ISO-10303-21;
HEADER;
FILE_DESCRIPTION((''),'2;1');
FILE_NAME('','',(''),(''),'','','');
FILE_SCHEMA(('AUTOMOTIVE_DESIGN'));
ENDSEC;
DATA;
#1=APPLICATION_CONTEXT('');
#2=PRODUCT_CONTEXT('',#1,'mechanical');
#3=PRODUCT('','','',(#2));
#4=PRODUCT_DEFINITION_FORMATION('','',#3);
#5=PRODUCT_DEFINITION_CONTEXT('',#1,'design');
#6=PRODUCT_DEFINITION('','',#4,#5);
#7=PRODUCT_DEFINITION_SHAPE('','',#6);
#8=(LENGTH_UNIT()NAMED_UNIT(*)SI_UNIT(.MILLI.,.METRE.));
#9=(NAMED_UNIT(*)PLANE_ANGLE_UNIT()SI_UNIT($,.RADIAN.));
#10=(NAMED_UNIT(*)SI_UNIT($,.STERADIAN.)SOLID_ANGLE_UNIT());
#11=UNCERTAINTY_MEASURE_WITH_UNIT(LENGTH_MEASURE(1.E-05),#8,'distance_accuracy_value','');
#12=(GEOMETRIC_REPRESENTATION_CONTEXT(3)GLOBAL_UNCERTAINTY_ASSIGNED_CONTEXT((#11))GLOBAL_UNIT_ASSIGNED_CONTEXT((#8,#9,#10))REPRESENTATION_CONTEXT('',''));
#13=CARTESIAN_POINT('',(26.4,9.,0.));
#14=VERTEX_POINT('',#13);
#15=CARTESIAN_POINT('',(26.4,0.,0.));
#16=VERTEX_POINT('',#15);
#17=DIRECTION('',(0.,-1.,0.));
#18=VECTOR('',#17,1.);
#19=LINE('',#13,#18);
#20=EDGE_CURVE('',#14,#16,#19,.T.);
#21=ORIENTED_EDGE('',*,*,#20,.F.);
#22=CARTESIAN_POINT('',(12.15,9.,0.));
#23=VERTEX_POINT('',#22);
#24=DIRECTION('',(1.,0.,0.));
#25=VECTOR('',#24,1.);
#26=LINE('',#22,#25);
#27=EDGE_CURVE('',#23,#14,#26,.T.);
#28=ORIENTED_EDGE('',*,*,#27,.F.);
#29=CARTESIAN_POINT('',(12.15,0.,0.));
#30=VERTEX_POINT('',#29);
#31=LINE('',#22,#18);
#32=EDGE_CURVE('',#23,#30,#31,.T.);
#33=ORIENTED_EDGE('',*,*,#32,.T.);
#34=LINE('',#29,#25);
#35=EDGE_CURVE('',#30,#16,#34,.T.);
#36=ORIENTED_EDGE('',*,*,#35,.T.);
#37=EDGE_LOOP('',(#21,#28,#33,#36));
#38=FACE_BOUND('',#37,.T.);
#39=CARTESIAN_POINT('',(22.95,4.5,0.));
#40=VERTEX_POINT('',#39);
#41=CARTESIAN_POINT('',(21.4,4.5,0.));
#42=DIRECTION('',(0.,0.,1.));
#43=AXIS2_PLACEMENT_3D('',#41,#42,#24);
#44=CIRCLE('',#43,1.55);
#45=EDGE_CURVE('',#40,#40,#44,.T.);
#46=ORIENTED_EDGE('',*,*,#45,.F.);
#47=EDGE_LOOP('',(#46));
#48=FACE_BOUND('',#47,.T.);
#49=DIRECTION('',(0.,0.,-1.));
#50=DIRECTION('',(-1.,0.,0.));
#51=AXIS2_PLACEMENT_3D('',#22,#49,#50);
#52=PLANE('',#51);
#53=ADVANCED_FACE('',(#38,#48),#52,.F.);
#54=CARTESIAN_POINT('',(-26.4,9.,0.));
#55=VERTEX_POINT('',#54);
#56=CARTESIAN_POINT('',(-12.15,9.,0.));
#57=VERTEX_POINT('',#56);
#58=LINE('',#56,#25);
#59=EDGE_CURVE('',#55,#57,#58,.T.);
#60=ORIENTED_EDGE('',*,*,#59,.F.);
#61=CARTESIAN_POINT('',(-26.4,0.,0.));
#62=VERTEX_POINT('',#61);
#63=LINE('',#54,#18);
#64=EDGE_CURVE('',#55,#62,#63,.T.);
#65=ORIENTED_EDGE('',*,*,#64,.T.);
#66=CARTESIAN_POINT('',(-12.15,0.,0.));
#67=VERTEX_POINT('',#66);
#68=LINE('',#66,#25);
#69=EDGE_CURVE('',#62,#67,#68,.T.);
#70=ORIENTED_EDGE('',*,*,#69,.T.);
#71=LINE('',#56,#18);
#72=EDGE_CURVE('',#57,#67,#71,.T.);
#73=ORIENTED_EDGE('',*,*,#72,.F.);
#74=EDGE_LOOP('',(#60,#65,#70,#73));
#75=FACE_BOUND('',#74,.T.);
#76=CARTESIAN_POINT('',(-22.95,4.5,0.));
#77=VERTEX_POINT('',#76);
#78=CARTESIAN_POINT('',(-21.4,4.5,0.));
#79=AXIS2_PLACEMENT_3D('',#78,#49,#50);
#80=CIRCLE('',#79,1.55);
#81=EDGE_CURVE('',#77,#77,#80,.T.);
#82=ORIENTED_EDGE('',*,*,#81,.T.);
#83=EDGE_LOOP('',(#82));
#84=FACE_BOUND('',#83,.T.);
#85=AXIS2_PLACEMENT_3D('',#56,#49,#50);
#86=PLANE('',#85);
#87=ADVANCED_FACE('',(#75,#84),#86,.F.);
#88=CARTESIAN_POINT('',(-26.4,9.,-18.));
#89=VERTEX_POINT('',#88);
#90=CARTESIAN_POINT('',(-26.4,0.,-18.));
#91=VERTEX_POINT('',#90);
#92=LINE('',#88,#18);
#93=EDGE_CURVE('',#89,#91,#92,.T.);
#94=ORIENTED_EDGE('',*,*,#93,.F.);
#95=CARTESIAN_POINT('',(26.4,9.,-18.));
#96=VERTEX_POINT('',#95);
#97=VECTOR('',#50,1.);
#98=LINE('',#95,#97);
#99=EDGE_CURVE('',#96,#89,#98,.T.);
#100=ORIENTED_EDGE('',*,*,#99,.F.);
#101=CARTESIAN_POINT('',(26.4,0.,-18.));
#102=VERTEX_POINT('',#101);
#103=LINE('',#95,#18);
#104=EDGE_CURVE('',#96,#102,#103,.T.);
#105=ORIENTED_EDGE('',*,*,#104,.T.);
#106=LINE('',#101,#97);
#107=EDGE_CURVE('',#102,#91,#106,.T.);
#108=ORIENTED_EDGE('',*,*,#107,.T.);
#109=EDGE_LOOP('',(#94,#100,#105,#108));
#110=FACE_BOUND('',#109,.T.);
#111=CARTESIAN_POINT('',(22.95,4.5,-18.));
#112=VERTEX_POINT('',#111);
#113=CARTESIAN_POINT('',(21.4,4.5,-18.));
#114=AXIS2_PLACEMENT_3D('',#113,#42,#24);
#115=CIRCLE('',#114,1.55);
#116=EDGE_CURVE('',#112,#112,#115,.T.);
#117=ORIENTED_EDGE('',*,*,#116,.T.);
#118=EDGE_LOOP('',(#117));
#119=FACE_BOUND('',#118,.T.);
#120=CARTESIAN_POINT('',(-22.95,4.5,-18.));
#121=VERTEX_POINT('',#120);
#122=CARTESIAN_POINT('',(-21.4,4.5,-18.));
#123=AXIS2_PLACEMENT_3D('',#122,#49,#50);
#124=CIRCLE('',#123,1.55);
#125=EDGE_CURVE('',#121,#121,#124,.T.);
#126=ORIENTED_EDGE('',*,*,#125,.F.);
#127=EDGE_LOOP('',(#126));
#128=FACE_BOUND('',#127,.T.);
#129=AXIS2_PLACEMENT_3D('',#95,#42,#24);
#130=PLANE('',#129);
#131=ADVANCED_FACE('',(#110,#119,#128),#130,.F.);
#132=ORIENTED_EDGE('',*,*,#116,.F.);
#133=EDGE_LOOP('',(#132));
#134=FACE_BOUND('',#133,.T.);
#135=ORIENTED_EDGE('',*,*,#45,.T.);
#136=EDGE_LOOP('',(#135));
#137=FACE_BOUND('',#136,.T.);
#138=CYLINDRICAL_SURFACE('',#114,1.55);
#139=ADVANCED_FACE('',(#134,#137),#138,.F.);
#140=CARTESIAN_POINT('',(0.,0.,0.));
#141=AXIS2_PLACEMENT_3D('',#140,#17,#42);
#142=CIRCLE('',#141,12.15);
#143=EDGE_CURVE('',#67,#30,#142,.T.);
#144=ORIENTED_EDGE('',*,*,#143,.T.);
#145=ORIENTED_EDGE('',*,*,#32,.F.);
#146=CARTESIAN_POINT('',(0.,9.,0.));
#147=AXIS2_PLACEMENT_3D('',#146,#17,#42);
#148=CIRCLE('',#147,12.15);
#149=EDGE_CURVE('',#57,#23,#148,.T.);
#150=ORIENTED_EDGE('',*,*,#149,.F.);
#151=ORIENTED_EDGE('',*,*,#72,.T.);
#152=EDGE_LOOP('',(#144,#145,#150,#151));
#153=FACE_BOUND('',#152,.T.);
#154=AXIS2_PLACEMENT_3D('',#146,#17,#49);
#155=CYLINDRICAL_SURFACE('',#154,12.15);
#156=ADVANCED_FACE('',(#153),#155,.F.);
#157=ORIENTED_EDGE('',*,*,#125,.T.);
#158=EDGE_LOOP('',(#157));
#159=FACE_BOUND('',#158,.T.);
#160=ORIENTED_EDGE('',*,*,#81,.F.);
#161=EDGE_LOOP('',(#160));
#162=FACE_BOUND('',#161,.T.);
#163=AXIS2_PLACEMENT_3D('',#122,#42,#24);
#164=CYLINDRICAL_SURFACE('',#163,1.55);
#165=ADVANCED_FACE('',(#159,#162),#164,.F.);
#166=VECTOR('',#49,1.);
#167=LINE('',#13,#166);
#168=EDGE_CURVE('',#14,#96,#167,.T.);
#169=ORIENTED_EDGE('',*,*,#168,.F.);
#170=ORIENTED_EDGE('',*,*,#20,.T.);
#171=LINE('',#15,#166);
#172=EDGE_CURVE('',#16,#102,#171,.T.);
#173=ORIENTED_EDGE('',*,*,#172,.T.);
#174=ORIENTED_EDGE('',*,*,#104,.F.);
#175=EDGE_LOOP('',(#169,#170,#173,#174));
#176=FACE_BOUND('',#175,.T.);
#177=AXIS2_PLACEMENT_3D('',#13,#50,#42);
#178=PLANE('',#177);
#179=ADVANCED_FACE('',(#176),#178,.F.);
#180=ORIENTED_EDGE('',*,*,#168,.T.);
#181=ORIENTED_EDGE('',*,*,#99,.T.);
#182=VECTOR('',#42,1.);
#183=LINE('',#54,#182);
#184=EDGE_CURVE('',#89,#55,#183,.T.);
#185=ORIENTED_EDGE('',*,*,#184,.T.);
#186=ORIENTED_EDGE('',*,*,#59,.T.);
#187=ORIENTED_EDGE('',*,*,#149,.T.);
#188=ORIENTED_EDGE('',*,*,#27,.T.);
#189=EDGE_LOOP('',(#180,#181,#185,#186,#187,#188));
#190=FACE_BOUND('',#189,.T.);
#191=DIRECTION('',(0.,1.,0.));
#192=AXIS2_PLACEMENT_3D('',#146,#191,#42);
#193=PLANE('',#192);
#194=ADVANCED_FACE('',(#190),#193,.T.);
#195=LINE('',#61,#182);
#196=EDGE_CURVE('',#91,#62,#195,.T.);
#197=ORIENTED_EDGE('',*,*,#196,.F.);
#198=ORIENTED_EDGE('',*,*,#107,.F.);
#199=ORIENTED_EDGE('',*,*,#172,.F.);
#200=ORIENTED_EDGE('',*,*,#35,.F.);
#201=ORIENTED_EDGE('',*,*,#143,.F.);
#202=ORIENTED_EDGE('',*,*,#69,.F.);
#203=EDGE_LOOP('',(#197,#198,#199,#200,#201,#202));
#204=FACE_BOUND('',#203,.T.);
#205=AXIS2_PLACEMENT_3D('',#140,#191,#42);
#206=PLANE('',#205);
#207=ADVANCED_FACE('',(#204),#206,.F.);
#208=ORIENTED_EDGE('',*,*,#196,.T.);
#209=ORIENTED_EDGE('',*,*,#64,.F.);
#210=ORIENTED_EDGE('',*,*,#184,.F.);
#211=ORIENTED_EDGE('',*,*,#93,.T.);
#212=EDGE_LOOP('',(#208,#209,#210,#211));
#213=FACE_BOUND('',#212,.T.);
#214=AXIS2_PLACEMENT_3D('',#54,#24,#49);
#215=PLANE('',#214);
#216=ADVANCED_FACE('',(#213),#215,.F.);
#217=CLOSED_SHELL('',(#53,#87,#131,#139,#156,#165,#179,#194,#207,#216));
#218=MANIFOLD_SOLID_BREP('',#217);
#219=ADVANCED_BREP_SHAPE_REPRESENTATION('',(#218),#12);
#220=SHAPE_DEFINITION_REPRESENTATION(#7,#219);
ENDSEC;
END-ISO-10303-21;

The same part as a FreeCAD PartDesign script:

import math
import FreeCAD as App
import Part
import Sketcher
Q = App.Units.Quantity

doc = App.newDocument("Part")
body = doc.addObject("PartDesign::Body", "Body")

sketch1 = body.newObject("Sketcher::SketchObject", "Sketch")
sketch1.AttachmentSupport = (doc.getObject("XZ_Plane"), [""])
sketch1.MapMode = "FlatFace"
sketch1.addGeometry([
    Part.LineSegment(App.Vector(12, 0, 0), App.Vector(26, 0, 0)),
    Part.LineSegment(App.Vector(26, 0, 0), App.Vector(26, -18, 0)),
    Part.LineSegment(App.Vector(26, -18, 0), App.Vector(-26, -18, 0)),
    Part.LineSegment(App.Vector(-26, -18, 0), App.Vector(-26, 0, 0)),
    Part.LineSegment(App.Vector(-26, 0, 0), App.Vector(-12, 0, 0)),
    Part.ArcOfCircle(Part.Circle(App.Vector(0, 0, 0), App.Vector(0, 0, 1), 12), math.radians(180), math.radians(360)),
], False)
sketch1.addConstraint([
    Sketcher.Constraint("Coincident", 0, 2, 1, 1),
    Sketcher.Constraint("Coincident", 1, 2, 2, 1),
    Sketcher.Constraint("Coincident", 2, 2, 3, 1),
    Sketcher.Constraint("Coincident", 3, 2, 4, 1),
    Sketcher.Constraint("Coincident", 4, 2, 5, 1),
    Sketcher.Constraint("Coincident", 5, 2, 0, 1),
    Sketcher.Constraint("Horizontal", 0),
    Sketcher.Constraint("Vertical", 1),
    Sketcher.Constraint("Horizontal", 2),
    Sketcher.Constraint("Vertical", 3),
    Sketcher.Constraint("Horizontal", 4),
    Sketcher.Constraint("Coincident", 5, 3, -1, 1),
    Sketcher.Constraint("Symmetric", 0, 2, 3, 2, -1, 1),
    Sketcher.Constraint("PointOnObject", 0, 2, -1),
    Sketcher.Constraint("DistanceY", 1, 2, 1, 1, Q("18 mm")),
    Sketcher.Constraint("Radius", 5, Q("12.15 mm")),
    Sketcher.Constraint("DistanceX", 2, 2, 2, 1, Q("52.8 mm")),
])
pad1 = body.newObject("PartDesign::Pad", "Pad")
pad1.Profile = sketch1
pad1.Length = 9
pad1.Reversed = True

sketch2 = body.newObject("Sketcher::SketchObject", "Sketch001")
sketch2.AttachmentSupport = (doc.getObject("XY_Plane"), [""])
sketch2.MapMode = "FlatFace"
sketch2.addGeometry(Part.Circle(App.Vector(21.4, 4.5, 0), App.Vector(0, 0, 1), 1.6), False)
sketch2.addConstraint([
    Sketcher.Constraint("Diameter", 0, Q("3.1 mm")),
    Sketcher.Constraint("DistanceX", -1, 1, 0, 3, Q("21.4 mm")),
    Sketcher.Constraint("DistanceY", -1, 1, 0, 3, Q("4.5 mm")),
])
pocket1 = body.newObject("PartDesign::Pocket", "Pocket")
pocket1.Profile = sketch2
pocket1.Type = "ThroughAll"
doc.recompute()

mirrored = body.newObject("PartDesign::Mirrored", "Mirrored")
mirrored.Originals = [pocket1]
mirrored.MirrorPlane = (doc.getObject("YZ_Plane"), [""])
body.Tip = mirrored

doc.recompute()
